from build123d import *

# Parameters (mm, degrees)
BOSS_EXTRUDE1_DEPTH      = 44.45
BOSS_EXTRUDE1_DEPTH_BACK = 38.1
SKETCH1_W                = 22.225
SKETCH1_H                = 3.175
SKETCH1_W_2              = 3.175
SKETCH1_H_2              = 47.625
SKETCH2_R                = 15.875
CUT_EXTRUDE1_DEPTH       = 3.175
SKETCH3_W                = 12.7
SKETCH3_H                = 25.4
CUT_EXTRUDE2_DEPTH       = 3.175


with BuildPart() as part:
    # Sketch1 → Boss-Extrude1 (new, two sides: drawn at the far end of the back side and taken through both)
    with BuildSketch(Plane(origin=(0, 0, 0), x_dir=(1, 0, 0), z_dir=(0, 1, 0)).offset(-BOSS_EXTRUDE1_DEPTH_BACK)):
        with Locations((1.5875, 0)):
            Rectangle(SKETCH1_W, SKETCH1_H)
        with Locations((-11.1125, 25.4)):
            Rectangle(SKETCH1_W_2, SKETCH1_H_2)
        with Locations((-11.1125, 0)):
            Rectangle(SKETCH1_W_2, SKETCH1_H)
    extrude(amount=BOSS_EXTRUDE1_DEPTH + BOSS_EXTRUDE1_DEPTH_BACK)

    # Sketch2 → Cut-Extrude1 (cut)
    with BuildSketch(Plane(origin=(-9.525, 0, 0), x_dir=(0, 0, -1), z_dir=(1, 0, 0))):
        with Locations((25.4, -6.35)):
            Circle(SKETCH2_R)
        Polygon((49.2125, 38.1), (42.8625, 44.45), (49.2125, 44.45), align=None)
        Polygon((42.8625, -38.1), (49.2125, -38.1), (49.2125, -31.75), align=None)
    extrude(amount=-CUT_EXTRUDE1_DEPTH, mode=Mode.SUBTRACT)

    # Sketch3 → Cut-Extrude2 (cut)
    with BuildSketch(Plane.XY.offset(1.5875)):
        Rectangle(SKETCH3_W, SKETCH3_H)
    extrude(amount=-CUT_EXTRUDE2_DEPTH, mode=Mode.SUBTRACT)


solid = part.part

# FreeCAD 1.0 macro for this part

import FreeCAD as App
import Part
import Sketcher

V = App.Vector
Q = App.Units.Quantity

doc = App.newDocument("Part")
params = doc.addObject("Spreadsheet::Sheet", "Params")
for row, (alias, value) in enumerate([
    ("sketch1_width", "1 in"),
    ("sketch1_height", "2 in"),
    ("sketch1_width2", "0.875 in"),
    ("pad1_length", "1.75 in"),
    ("pad1_length2", "1.5 in"),
    ("sketch2_diameter", "1.25 in"),
    ("sketch2_width", "0.25 in"),
    ("pocket1_length", "0.125 in"),
    ("sketch3_height", "1 in"),
    ("sketch3_width", "0.5 in"),
    ("pocket2_length", "0.125 in"),
], start=1):
    params.set(f"A{row}", alias)
    params.set(f"B{row}", "=" + value)
    params.setAlias(f"B{row}", alias)

body = doc.addObject("PartDesign::Body", "Body")

# Sketch on XZ plane
sketch1 = doc.addObject("Sketcher::SketchObject", "Sketch")
body.addObject(sketch1)
sketch1.AttachmentSupport = (doc.XZ_Plane, [""])
sketch1.MapMode = "FlatFace"
sketch1.addGeometry(Part.LineSegment(V(12.7, 1.6, 0), V(12.7, -1.6, 0)), False)
sketch1.addGeometry(Part.LineSegment(V(12.7, -1.6, 0), V(-9.5, -1.6, 0)), False)
sketch1.addGeometry(Part.LineSegment(V(-9.5, -1.6, 0), V(-9.5, -49.2, 0)), False)
sketch1.addGeometry(Part.LineSegment(V(-9.5, -49.2, 0), V(-12.7, -49.2, 0)), False)
sketch1.addGeometry(Part.LineSegment(V(-12.7, -49.2, 0), V(-12.7, 1.6, 0)), False)
sketch1.addGeometry(Part.LineSegment(V(-12.7, 1.6, 0), V(12.7, 1.6, 0)), False)
sketch1.addConstraint(Sketcher.Constraint("Coincident", 0, 2, 1, 1))
sketch1.addConstraint(Sketcher.Constraint("Coincident", 1, 2, 2, 1))
sketch1.addConstraint(Sketcher.Constraint("Coincident", 2, 2, 3, 1))
sketch1.addConstraint(Sketcher.Constraint("Coincident", 3, 2, 4, 1))
sketch1.addConstraint(Sketcher.Constraint("Coincident", 4, 2, 5, 1))
sketch1.addConstraint(Sketcher.Constraint("Coincident", 5, 2, 0, 1))
sketch1.addConstraint(Sketcher.Constraint("Vertical", 0))
sketch1.addConstraint(Sketcher.Constraint("Horizontal", 1))
sketch1.addConstraint(Sketcher.Constraint("Vertical", 2))
sketch1.addConstraint(Sketcher.Constraint("Horizontal", 3))
sketch1.addConstraint(Sketcher.Constraint("Vertical", 4))
sketch1.addConstraint(Sketcher.Constraint("Horizontal", 5))
sketch1.addConstraint(Sketcher.Constraint("Symmetric", 0, 2, 4, 2, -1, 1))
sketch1.addConstraint(Sketcher.Constraint("Equal", 3, 0))
sketch1.addConstraint(Sketcher.Constraint("DistanceX", 5, 1, 5, 2, Q("1 in")))
sketch1.addConstraint(Sketcher.Constraint("DistanceY", 4, 1, 4, 2, Q("2 in")))
sketch1.addConstraint(Sketcher.Constraint("DistanceX", 1, 2, 1, 1, Q("0.875 in")))
sketch1.setExpression("Constraints[14]", "Params.sketch1_width")
sketch1.setExpression("Constraints[15]", "Params.sketch1_height")
sketch1.setExpression("Constraints[16]", "Params.sketch1_width2")
pad1 = doc.addObject("PartDesign::Pad", "Pad")
body.addObject(pad1)
pad1.Profile = sketch1
pad1.Type = "TwoLengths"
pad1.setExpression("Length", "Params.pad1_length")
pad1.setExpression("Length2", "Params.pad1_length2")
pad1.Reversed = True

# Sketch on YZ plane
sketch2 = doc.addObject("Sketcher::SketchObject", "Sketch001")
body.addObject(sketch2)
sketch2.AttachmentSupport = (doc.YZ_Plane, [""])
sketch2.MapMode = "FlatFace"
sketch2.AttachmentOffset = App.Placement(V(0, 0, -0.375 * 25.4), App.Rotation())
sketch2.addGeometry(Part.Circle(V(-6, -25, 0), V(0, 0, 1), 16), False)
sketch2.addGeometry(Part.LineSegment(V(44, -43, 0), V(38, -49, 0)), False)
sketch2.addGeometry(Part.LineSegment(V(38, -49, 0), V(44, -49, 0)), False)
sketch2.addGeometry(Part.LineSegment(V(44, -49, 0), V(44, -43, 0)), False)
sketch2.addGeometry(Part.LineSegment(V(-38, -43, 0), V(-38, -49, 0)), False)
sketch2.addGeometry(Part.LineSegment(V(-38, -49, 0), V(-32, -49, 0)), False)
sketch2.addGeometry(Part.LineSegment(V(-32, -49, 0), V(-38, -43, 0)), False)
sketch2.addConstraint(Sketcher.Constraint("Coincident", 1, 2, 2, 1))
sketch2.addConstraint(Sketcher.Constraint("Coincident", 2, 2, 3, 1))
sketch2.addConstraint(Sketcher.Constraint("Coincident", 3, 2, 1, 1))
sketch2.addConstraint(Sketcher.Constraint("Coincident", 4, 2, 5, 1))
sketch2.addConstraint(Sketcher.Constraint("Coincident", 5, 2, 6, 1))
sketch2.addConstraint(Sketcher.Constraint("Coincident", 6, 2, 4, 1))
sketch2.addConstraint(Sketcher.Constraint("Horizontal", 2))
sketch2.addConstraint(Sketcher.Constraint("Vertical", 3))
sketch2.addConstraint(Sketcher.Constraint("Vertical", 4))
sketch2.addConstraint(Sketcher.Constraint("Horizontal", 5))
sketch2.addConstraint(Sketcher.Constraint("Symmetric", 1, 2, 4, 2, -2))
sketch2.addConstraint(Sketcher.Constraint("Perpendicular", 1, 6))
sketch2.addConstraint(Sketcher.Constraint("Horizontal", 3, 2, 6, 2))
sketch2.addConstraint(Sketcher.Constraint("Equal", 2, 5))
sketch2.addConstraint(Sketcher.Constraint("Diameter", 0, Q("1.25 in")))
sketch2.addConstraint(Sketcher.Constraint("DistanceY", 0, 3, -1, 1, Q("1 in")))
sketch2.addConstraint(Sketcher.Constraint("DistanceX", 0, 3, 2, 2, Q("2 in")))
sketch2.addConstraint(Sketcher.Constraint("DistanceX", 4, 2, 1, 2, Q("3 in")))
sketch2.addConstraint(Sketcher.Constraint("DistanceX", 2, 1, 2, 2, Q("0.25 in")))
sketch2.addConstraint(Sketcher.Constraint("DistanceY", 1, 2, -1, 1, Q("1.9375 in")))
sketch2.setExpression("Constraints[14]", "Params.sketch2_diameter")
sketch2.setExpression("Constraints[18]", "Params.sketch2_width")
pocket1 = doc.addObject("PartDesign::Pocket", "Pocket")
body.addObject(pocket1)
pocket1.Profile = sketch2
pocket1.setExpression("Length", "Params.pocket1_length")

# Sketch on XY plane
sketch3 = doc.addObject("Sketcher::SketchObject", "Sketch002")
body.addObject(sketch3)
sketch3.AttachmentSupport = (doc.XY_Plane, [""])
sketch3.MapMode = "FlatFace"
sketch3.AttachmentOffset = App.Placement(V(0, 0, 0.0625 * 25.4), App.Rotation())
sketch3.addGeometry(Part.LineSegment(V(-6, 13, 0), V(-6, -13, 0)), False)
sketch3.addGeometry(Part.LineSegment(V(-6, -13, 0), V(6, -13, 0)), False)
sketch3.addGeometry(Part.LineSegment(V(6, -13, 0), V(6, 13, 0)), False)
sketch3.addGeometry(Part.LineSegment(V(6, 13, 0), V(-6, 13, 0)), False)
sketch3.addConstraint(Sketcher.Constraint("Coincident", 0, 2, 1, 1))
sketch3.addConstraint(Sketcher.Constraint("Coincident", 1, 2, 2, 1))
sketch3.addConstraint(Sketcher.Constraint("Coincident", 2, 2, 3, 1))
sketch3.addConstraint(Sketcher.Constraint("Coincident", 3, 2, 0, 1))
sketch3.addConstraint(Sketcher.Constraint("Vertical", 0))
sketch3.addConstraint(Sketcher.Constraint("Horizontal", 1))
sketch3.addConstraint(Sketcher.Constraint("Vertical", 2))
sketch3.addConstraint(Sketcher.Constraint("Horizontal", 3))
sketch3.addConstraint(Sketcher.Constraint("Symmetric", 0, 2, 2, 2, -1, 1))
sketch3.addConstraint(Sketcher.Constraint("DistanceY", 0, 2, 0, 1, Q("1 in")))
sketch3.addConstraint(Sketcher.Constraint("DistanceX", 1, 1, 1, 2, Q("0.5 in")))
sketch3.setExpression("Constraints[9]", "Params.sketch3_height")
sketch3.setExpression("Constraints[10]", "Params.sketch3_width")
pocket2 = doc.addObject("PartDesign::Pocket", "Pocket001")
body.addObject(pocket2)
pocket2.Profile = sketch3
pocket2.setExpression("Length", "Params.pocket2_length")

doc.recompute()
